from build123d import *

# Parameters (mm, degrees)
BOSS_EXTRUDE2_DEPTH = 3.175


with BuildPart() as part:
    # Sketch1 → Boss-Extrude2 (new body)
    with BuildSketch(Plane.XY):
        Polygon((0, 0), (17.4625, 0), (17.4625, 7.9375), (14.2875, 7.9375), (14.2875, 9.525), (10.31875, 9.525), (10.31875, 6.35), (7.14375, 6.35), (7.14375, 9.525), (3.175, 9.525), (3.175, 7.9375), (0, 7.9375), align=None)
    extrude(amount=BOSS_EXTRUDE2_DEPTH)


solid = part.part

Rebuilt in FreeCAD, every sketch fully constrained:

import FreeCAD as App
import Part
import Sketcher
Q = App.Units.Quantity

doc = App.newDocument("Part")
body = doc.addObject("PartDesign::Body", "Body")

# Sketch on XY plane
sketch1 = doc.addObject("Sketcher::SketchObject", "Sketch")
body.addObject(sketch1)
sketch1.AttachmentSupport = (doc.XY_Plane, [""])
sketch1.MapMode = "FlatFace"
sketch1.addGeometry([
    Part.LineSegment(App.Vector(0, 0, 0), App.Vector(17.5, 0, 0)),  # 0
    Part.LineSegment(App.Vector(17.5, 0, 0), App.Vector(17.5, 7.9, 0)),  # 1
    Part.LineSegment(App.Vector(17.5, 7.9, 0), App.Vector(14.3, 7.9, 0)),  # 2
    Part.LineSegment(App.Vector(14.3, 7.9, 0), App.Vector(14.3, 9.5, 0)),  # 3
    Part.LineSegment(App.Vector(14.3, 9.5, 0), App.Vector(10.3, 9.5, 0)),  # 4
    Part.LineSegment(App.Vector(10.3, 9.5, 0), App.Vector(10.3, 6.3, 0)),  # 5
    Part.LineSegment(App.Vector(10.3, 6.3, 0), App.Vector(7.1, 6.3, 0)),  # 6
    Part.LineSegment(App.Vector(7.1, 6.3, 0), App.Vector(7.1, 9.5, 0)),  # 7
    Part.LineSegment(App.Vector(7.1, 9.5, 0), App.Vector(3.2, 9.5, 0)),  # 8
    Part.LineSegment(App.Vector(3.2, 9.5, 0), App.Vector(3.2, 7.9, 0)),  # 9
    Part.LineSegment(App.Vector(3.2, 7.9, 0), App.Vector(0, 7.9, 0)),  # 10
    Part.LineSegment(App.Vector(0, 7.9, 0), App.Vector(0, 0, 0)),  # 11
], False)
sketch1.addConstraint([
    Sketcher.Constraint("Coincident", 0, 2, 1, 1),
    Sketcher.Constraint("Coincident", 1, 2, 2, 1),
    Sketcher.Constraint("Coincident", 2, 2, 3, 1),
    Sketcher.Constraint("Coincident", 3, 2, 4, 1),
    Sketcher.Constraint("Coincident", 4, 2, 5, 1),
    Sketcher.Constraint("Coincident", 5, 2, 6, 1),
    Sketcher.Constraint("Coincident", 6, 2, 7, 1),
    Sketcher.Constraint("Coincident", 7, 2, 8, 1),
    Sketcher.Constraint("Coincident", 8, 2, 9, 1),
    Sketcher.Constraint("Coincident", 9, 2, 10, 1),
    Sketcher.Constraint("Coincident", 10, 2, 11, 1),
    Sketcher.Constraint("Coincident", 11, 2, 0, 1),
    Sketcher.Constraint("Horizontal", 0),
    Sketcher.Constraint("Vertical", 1),
    Sketcher.Constraint("Horizontal", 2),
    Sketcher.Constraint("Vertical", 3),
    Sketcher.Constraint("Horizontal", 4),
    Sketcher.Constraint("Vertical", 5),
    Sketcher.Constraint("Horizontal", 6),
    Sketcher.Constraint("Vertical", 7),
    Sketcher.Constraint("Horizontal", 8),
    Sketcher.Constraint("Vertical", 9),
    Sketcher.Constraint("Horizontal", 10),
    Sketcher.Constraint("Vertical", 11),
    Sketcher.Constraint("Coincident", 11, 2, -1, 1),
    Sketcher.Constraint("Horizontal", 4, 2, 7, 2),
    Sketcher.Constraint("Horizontal", 2, 2, 9, 2),
    Sketcher.Constraint("Equal", 2, 6),
    Sketcher.Constraint("Equal", 4, 8),
    Sketcher.Constraint("Equal", 6, 10),
    Sketcher.Constraint("Equal", 10, 5),
    Sketcher.Constraint("DistanceX", 0, 1, 0, 2, Q("0.6875 in")),
    Sketcher.Constraint("DistanceX", 2, 2, 2, 1, Q("0.125 in")),
    Sketcher.Constraint("DistanceY", 1, 1, 1, 2, Q("0.3125 in")),
    Sketcher.Constraint("DistanceY", 3, 1, 3, 2, Q("0.0625 in")),
])
pad1 = doc.addObject("PartDesign::Pad", "Pad")
body.addObject(pad1)
pad1.Profile = sketch1
pad1.Length = Q("0.125 in")

doc.recompute()
